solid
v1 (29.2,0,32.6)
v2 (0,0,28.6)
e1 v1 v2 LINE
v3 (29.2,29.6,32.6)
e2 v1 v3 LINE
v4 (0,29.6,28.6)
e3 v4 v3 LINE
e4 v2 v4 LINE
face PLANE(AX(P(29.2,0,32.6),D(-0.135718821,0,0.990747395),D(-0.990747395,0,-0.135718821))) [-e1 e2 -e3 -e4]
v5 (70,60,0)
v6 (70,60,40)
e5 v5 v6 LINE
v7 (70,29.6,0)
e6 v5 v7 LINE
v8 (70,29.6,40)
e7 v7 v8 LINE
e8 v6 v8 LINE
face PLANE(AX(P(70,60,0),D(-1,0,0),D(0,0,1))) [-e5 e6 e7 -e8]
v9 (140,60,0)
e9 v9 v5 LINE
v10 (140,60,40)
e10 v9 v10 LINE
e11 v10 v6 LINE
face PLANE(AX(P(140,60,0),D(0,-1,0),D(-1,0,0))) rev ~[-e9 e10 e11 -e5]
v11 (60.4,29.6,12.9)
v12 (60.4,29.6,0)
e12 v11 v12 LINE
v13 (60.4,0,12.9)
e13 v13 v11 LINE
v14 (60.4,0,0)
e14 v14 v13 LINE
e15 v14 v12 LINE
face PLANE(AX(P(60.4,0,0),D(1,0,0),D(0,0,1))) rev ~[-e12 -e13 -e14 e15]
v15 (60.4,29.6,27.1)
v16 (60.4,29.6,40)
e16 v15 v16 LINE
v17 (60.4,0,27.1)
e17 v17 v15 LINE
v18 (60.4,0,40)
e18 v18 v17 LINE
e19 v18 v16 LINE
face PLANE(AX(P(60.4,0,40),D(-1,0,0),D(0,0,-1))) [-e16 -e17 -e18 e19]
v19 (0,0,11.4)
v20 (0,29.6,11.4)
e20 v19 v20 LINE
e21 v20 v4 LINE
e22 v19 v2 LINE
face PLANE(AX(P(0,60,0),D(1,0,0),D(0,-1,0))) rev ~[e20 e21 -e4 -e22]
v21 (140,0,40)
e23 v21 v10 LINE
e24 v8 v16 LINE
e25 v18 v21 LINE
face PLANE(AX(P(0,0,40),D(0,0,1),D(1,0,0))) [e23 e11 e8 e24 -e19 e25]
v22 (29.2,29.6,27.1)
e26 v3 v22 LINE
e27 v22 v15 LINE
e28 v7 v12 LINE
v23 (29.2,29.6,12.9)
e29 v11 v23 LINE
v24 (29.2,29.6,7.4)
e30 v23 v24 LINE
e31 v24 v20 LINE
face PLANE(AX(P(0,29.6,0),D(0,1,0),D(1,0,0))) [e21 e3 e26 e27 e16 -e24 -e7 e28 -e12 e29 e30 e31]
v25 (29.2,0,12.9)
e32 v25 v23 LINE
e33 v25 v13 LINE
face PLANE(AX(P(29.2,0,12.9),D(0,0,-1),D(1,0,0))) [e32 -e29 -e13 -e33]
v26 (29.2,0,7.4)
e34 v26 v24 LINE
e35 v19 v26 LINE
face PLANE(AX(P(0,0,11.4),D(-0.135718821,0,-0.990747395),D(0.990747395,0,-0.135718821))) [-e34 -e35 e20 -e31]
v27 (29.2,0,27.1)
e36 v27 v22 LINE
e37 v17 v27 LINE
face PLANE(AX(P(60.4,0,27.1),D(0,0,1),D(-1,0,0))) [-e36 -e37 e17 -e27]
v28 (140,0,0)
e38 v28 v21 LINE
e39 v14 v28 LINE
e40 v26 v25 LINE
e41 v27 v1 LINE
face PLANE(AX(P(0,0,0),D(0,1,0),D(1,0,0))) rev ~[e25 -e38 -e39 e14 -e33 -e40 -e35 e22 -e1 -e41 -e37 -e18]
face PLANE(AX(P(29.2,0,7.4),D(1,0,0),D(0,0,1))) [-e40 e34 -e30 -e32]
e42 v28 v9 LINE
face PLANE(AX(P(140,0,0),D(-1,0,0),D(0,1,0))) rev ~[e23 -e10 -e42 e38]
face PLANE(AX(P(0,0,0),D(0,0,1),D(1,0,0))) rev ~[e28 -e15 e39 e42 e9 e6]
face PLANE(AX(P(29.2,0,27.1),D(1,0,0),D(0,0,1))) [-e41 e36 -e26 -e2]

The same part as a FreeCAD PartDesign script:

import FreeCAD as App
import Part
import Sketcher
from FreeCAD import Vector
Q = App.Units.Quantity

doc = App.newDocument("Part")
body = doc.addObject("PartDesign::Body", "Body")

sketch1 = doc.addObject("Sketcher::SketchObject", "Sketch")
body.addObject(sketch1)
sketch1.AttachmentSupport = (doc.XY_Plane, [""])
sketch1.MapMode = "FlatFace"
sketch1.addGeometry([
    Part.LineSegment(Vector(0, 60, 0), Vector(0, 0, 0)),
    Part.LineSegment(Vector(0, 0, 0), Vector(140, 0, 0)),
    Part.LineSegment(Vector(140, 0, 0), Vector(140, 60, 0)),
    Part.LineSegment(Vector(140, 60, 0), Vector(0, 60, 0)),
], False)
sketch1.addConstraint([
    Sketcher.Constraint("Coincident", 0, 2, 1, 1),
    Sketcher.Constraint("Coincident", 1, 2, 2, 1),
    Sketcher.Constraint("Coincident", 2, 2, 3, 1),
    Sketcher.Constraint("Coincident", 3, 2, 0, 1),
    Sketcher.Constraint("Vertical", 0),
    Sketcher.Constraint("Horizontal", 1),
    Sketcher.Constraint("Vertical", 2),
    Sketcher.Constraint("Horizontal", 3),
    Sketcher.Constraint("Coincident", 0, 2, -1, 1),
    Sketcher.Constraint("DistanceX", 1, 1, 1, 2, Q("140 mm")),
    Sketcher.Constraint("DistanceY", 0, 2, 0, 1, Q("60 mm")),
])
pad1 = doc.addObject("PartDesign::Pad", "Pad")
body.addObject(pad1)
pad1.Profile = sketch1
pad1.Length = 40

sketch2 = doc.addObject("Sketcher::SketchObject", "Sketch001")
body.addObject(sketch2)
sketch2.AttachmentSupport = (doc.XZ_Plane, [""])
sketch2.MapMode = "FlatFace"
sketch2.AttachmentOffset = App.Placement(Vector(0, 0, -60), App.Rotation())
sketch2.addGeometry([
    Part.LineSegment(Vector(0, 40, 0), Vector(70, 40, 0)),
    Part.LineSegment(Vector(70, 40, 0), Vector(70, 0, 0)),
    Part.LineSegment(Vector(70, 0, 0), Vector(0, 0, 0)),
    Part.LineSegment(Vector(0, 0, 0), Vector(0, 40, 0)),
], False)
sketch2.addConstraint([
    Sketcher.Constraint("Coincident", 0, 2, 1, 1),
    Sketcher.Constraint("Coincident", 1, 2, 2, 1),
    Sketcher.Constraint("Coincident", 2, 2, 3, 1),
    Sketcher.Constraint("Coincident", 3, 2, 0, 1),
    Sketcher.Constraint("Horizontal", 0),
    Sketcher.Constraint("Vertical", 1),
    Sketcher.Constraint("Horizontal", 2),
    Sketcher.Constraint("Vertical", 3),
    Sketcher.Constraint("Coincident", 2, 2, -1, 1),
    Sketcher.Constraint("DistanceX", 0, 1, 0, 2, Q("70 mm")),
    Sketcher.Constraint("DistanceY", 1, 2, 1, 1, Q("40 mm")),
])
pocket1 = doc.addObject("PartDesign::Pocket", "Pocket")
body.addObject(pocket1)
pocket1.Profile = sketch2
pocket1.Length = 30.4
pocket1.Reversed = True

sketch3 = doc.addObject("Sketcher::SketchObject", "Sketch002")
body.addObject(sketch3)
sketch3.AttachmentSupport = (doc.XZ_Plane, [""])
sketch3.MapMode = "FlatFace"
sketch3.addGeometry([
    Part.LineSegment(Vector(0, 11.4, 0), Vector(0, 0, 0)),
    Part.LineSegment(Vector(0, 0, 0), Vector(60.4, 0, 0)),
    Part.LineSegment(Vector(60.4, 0, 0), Vector(60.4, 12.9, 0)),
    Part.LineSegment(Vector(60.4, 12.9, 0), Vector(29.2, 12.9, 0)),
    Part.LineSegment(Vector(29.2, 12.9, 0), Vector(29.2, 7.4, 0)),
    Part.LineSegment(Vector(29.2, 7.4, 0), Vector(0, 11.4, 0)),
    Part.LineSegment(Vector(0, 40, 0), Vector(0, 28.6, 0)),
    Part.LineSegment(Vector(0, 28.6, 0), Vector(29.2, 32.6, 0)),
    Part.LineSegment(Vector(29.2, 32.6, 0), Vector(29.2, 27.1, 0)),
    Part.LineSegment(Vector(29.2, 27.1, 0), Vector(60.4, 27.1, 0)),
    Part.LineSegment(Vector(60.4, 27.1, 0), Vector(60.4, 40, 0)),
    Part.LineSegment(Vector(60.4, 40, 0), Vector(0, 40, 0)),
], False)
sketch3.addConstraint([
    Sketcher.Constraint("Coincident", 0, 2, 1, 1),
    Sketcher.Constraint("Coincident", 1, 2, 2, 1),
    Sketcher.Constraint("Coincident", 2, 2, 3, 1),
    Sketcher.Constraint("Coincident", 3, 2, 4, 1),
    Sketcher.Constraint("Coincident", 4, 2, 5, 1),
    Sketcher.Constraint("Coincident", 5, 2, 0, 1),
    Sketcher.Constraint("Coincident", 6, 2, 7, 1),
    Sketcher.Constraint("Coincident", 7, 2, 8, 1),
    Sketcher.Constraint("Coincident", 8, 2, 9, 1),
    Sketcher.Constraint("Coincident", 9, 2, 10, 1),
    Sketcher.Constraint("Coincident", 10, 2, 11, 1),
    Sketcher.Constraint("Coincident", 11, 2, 6, 1),
    Sketcher.Constraint("Vertical", 0),
    Sketcher.Constraint("Horizontal", 1),
    Sketcher.Constraint("Vertical", 2),
    Sketcher.Constraint("Horizontal", 3),
    Sketcher.Constraint("Vertical", 4),
    Sketcher.Constraint("Vertical", 6),
    Sketcher.Constraint("Vertical", 8),
    Sketcher.Constraint("Horizontal", 9),
    Sketcher.Constraint("Vertical", 10),
    Sketcher.Constraint("Horizontal", 11),
    Sketcher.Constraint("Coincident", 0, 2, -1, 1),
    Sketcher.Constraint("PointOnObject", 6, 2, -2),
    Sketcher.Constraint("Vertical", 4, 2, 7, 2),
    Sketcher.Constraint("Vertical", 2, 2, 9, 2),
    Sketcher.Constraint("Equal", 0, 6),
    Sketcher.Constraint("Equal", 4, 8),
    Sketcher.Constraint("Equal", 2, 10),
    Sketcher.Constraint("DistanceX", 1, 1, 1, 2, Q("60.4 mm")),
    Sketcher.Constraint("DistanceX", 3, 2, 3, 1, Q("31.2 mm")),
    Sketcher.Constraint("DistanceY", 0, 2, 0, 1, Q("11.4 mm")),
    Sketcher.Constraint("DistanceY", 2, 1, 2, 2, Q("12.9 mm")),
    Sketcher.Constraint("DistanceY", 4, 2, 4, 1, Q("5.5 mm")),
    Sketcher.Constraint("DistanceY", 5, 2, 6, 2, Q("17.2 mm")),
])
pocket2 = doc.addObject("PartDesign::Pocket", "Pocket001")
body.addObject(pocket2)
pocket2.Profile = sketch3
pocket2.Length = 30

doc.recompute()
